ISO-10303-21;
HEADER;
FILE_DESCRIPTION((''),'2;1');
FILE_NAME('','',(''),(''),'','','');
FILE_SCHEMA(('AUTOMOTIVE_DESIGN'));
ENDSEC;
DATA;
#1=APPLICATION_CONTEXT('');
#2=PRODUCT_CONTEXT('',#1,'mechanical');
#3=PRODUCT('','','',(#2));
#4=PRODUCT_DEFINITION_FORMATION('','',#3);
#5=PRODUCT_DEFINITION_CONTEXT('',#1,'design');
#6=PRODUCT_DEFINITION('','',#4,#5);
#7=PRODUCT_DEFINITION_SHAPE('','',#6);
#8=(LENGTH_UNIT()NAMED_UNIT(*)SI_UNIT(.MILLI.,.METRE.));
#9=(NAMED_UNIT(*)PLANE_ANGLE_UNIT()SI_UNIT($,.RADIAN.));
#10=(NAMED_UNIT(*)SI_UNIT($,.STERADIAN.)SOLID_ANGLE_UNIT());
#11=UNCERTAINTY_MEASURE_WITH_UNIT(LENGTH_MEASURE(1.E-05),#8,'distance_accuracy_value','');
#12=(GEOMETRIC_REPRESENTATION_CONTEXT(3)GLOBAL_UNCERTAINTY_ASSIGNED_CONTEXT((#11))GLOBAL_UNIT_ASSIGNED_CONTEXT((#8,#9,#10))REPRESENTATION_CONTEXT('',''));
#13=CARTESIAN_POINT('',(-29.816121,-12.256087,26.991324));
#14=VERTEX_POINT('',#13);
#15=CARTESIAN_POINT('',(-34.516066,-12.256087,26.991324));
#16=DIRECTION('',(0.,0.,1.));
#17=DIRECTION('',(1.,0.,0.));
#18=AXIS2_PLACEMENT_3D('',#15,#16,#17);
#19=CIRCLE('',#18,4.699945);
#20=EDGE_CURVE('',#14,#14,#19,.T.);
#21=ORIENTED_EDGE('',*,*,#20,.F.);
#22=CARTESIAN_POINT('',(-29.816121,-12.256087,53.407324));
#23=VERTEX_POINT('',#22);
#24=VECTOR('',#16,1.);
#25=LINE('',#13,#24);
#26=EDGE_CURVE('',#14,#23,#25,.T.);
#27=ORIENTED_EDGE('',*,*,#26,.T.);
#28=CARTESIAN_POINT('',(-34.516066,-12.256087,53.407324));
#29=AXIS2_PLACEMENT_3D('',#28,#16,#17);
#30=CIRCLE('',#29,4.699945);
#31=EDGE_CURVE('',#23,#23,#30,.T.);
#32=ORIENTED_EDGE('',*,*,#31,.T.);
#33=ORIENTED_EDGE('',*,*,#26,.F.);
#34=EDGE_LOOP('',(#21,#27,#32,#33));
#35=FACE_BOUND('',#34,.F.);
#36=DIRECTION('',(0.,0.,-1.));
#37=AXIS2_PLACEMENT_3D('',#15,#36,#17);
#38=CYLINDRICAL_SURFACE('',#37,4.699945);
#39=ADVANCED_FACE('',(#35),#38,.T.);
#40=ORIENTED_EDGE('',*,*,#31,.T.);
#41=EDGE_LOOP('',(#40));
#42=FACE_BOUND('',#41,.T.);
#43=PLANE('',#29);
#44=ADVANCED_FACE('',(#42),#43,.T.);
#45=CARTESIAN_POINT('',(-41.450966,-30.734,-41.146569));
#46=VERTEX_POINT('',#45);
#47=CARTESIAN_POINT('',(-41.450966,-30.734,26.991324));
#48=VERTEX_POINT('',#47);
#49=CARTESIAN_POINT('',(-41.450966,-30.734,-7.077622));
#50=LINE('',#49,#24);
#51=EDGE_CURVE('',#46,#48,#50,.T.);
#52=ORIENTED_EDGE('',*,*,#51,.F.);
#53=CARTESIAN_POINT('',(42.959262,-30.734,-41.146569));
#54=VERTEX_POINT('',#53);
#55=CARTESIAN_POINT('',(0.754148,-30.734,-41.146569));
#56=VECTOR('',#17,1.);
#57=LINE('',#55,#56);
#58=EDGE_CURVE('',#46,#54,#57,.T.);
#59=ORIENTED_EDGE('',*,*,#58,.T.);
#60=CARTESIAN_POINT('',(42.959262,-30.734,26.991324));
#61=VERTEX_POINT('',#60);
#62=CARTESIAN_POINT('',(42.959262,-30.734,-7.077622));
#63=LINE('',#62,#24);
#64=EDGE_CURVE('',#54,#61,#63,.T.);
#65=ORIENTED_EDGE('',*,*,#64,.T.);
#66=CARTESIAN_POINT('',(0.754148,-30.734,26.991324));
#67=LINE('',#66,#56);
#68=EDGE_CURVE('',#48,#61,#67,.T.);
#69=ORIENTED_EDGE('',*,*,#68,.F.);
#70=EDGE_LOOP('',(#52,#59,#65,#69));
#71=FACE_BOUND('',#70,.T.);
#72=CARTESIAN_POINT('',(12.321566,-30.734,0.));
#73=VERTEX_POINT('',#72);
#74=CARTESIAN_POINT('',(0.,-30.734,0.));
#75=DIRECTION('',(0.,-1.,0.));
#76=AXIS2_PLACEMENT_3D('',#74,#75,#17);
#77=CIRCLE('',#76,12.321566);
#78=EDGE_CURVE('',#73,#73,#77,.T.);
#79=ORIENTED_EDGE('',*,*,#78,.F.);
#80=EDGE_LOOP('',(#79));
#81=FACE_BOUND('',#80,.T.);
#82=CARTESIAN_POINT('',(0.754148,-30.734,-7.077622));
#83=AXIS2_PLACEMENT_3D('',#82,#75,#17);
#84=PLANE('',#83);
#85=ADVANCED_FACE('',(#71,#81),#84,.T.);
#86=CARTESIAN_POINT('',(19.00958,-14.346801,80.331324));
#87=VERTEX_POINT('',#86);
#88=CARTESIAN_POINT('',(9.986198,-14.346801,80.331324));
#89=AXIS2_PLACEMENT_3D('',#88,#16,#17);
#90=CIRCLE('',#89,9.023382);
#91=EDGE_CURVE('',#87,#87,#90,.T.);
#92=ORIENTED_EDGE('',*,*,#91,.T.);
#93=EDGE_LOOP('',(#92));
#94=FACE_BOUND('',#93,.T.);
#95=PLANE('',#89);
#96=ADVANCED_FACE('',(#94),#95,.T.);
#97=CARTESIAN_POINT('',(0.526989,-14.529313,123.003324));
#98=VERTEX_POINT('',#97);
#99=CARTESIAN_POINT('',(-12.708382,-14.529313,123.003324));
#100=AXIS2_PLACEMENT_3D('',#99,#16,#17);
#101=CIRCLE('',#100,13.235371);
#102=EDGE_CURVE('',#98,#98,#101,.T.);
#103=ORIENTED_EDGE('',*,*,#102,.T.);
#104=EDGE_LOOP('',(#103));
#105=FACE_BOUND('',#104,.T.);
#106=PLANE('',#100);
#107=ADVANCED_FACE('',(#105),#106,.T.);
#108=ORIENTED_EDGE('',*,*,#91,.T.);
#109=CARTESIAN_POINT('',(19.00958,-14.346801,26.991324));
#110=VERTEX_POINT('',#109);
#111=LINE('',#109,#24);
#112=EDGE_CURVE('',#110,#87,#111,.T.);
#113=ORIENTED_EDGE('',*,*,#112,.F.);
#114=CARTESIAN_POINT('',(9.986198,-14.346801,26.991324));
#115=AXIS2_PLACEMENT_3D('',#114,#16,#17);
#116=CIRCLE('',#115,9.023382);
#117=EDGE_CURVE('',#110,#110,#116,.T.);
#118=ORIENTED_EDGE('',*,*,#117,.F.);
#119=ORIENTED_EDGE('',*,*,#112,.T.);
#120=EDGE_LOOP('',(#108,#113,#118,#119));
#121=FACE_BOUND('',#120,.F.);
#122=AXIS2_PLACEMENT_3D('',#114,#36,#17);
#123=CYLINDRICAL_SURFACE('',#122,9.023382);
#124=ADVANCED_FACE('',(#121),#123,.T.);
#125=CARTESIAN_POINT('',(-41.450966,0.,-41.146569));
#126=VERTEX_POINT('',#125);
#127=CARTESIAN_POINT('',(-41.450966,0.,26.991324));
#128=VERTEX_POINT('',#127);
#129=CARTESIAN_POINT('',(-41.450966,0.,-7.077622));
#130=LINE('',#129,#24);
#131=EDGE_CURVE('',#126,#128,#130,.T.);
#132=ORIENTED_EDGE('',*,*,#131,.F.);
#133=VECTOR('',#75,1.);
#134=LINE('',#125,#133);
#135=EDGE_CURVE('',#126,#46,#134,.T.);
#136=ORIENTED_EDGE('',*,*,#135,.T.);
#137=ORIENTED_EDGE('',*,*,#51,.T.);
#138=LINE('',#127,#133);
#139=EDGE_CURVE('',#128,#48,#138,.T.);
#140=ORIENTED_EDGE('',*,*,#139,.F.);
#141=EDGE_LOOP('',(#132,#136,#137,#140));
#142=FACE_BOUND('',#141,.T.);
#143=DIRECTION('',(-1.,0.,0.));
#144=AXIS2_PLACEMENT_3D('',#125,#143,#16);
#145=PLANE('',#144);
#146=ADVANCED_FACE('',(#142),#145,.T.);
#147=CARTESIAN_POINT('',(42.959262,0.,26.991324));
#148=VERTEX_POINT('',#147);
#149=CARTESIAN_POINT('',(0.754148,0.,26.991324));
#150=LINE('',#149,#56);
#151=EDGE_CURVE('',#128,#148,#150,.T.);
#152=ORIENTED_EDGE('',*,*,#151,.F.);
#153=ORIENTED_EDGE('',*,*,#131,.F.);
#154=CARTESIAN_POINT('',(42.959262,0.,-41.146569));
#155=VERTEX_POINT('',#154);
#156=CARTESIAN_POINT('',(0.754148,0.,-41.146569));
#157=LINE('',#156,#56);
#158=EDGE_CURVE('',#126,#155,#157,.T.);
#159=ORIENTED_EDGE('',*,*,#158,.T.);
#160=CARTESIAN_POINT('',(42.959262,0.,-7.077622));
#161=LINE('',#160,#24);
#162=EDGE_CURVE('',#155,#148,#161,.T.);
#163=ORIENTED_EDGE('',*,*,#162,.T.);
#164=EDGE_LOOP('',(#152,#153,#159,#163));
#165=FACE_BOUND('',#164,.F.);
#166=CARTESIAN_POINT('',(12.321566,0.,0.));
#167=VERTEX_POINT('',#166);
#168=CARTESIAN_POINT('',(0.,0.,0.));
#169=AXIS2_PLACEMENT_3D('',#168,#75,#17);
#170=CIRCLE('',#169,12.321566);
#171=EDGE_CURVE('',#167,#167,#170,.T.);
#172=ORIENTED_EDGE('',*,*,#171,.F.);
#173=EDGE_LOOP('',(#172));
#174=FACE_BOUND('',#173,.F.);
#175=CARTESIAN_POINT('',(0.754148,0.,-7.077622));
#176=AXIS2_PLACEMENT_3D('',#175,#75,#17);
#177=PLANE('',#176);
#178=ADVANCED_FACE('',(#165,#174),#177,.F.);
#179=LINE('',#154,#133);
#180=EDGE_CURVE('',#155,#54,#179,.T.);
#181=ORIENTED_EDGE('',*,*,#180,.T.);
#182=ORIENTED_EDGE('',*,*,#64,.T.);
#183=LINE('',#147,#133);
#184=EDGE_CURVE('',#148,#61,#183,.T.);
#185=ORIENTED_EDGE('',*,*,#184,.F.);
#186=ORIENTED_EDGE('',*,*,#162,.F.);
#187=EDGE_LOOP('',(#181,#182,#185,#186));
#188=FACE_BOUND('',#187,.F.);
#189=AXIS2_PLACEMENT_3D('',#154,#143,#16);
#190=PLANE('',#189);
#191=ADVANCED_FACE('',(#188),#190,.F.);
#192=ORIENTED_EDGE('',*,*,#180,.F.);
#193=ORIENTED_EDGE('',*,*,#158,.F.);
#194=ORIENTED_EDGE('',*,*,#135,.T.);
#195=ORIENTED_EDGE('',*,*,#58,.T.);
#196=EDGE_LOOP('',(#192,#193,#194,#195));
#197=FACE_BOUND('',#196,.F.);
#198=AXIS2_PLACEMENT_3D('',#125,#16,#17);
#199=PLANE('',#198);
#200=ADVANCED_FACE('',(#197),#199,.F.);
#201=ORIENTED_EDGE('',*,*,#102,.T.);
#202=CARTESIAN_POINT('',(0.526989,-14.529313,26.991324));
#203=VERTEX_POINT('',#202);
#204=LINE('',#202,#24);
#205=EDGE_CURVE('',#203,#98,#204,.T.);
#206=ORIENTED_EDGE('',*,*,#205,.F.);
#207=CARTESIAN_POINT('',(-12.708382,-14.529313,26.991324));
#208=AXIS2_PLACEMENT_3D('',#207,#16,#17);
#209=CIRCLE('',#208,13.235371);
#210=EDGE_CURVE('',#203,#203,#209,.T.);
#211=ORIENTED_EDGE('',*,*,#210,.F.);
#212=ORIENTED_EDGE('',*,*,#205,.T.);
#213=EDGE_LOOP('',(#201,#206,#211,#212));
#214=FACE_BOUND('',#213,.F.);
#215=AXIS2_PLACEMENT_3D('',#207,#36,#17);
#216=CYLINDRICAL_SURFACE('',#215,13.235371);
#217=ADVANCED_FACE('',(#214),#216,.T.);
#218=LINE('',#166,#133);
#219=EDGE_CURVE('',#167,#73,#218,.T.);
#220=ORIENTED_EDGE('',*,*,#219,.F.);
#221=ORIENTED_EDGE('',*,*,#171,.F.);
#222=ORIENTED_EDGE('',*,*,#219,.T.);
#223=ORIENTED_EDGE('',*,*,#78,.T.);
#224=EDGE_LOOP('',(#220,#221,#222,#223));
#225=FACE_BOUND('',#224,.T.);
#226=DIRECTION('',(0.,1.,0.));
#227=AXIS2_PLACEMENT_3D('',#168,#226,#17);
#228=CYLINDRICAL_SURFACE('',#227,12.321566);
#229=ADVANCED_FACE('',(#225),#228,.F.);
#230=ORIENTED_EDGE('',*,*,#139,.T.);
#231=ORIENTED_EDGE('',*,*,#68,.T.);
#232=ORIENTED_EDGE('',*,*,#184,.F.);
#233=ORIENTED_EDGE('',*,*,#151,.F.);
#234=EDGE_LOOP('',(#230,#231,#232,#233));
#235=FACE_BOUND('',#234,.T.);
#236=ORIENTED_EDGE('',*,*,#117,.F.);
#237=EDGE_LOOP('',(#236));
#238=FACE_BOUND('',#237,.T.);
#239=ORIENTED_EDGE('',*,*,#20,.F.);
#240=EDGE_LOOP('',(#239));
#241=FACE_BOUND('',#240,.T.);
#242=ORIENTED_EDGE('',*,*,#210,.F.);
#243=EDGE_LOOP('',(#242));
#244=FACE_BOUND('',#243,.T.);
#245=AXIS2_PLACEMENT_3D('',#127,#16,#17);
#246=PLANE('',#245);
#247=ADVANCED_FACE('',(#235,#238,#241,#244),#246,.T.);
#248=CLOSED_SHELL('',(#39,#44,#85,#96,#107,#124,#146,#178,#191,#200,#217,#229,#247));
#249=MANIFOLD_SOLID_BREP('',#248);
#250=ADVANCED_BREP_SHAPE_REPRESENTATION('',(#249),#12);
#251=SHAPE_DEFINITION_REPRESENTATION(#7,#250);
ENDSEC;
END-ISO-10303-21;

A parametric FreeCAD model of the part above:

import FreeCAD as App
import Part
import Sketcher
Q = App.Units.Quantity

doc = App.newDocument("Part")
body = doc.addObject("PartDesign::Body", "Body")

# Sketch on XZ plane
sketch1 = body.newObject("Sketcher::SketchObject", "Sketch")
sketch1.AttachmentSupport = (doc.getObject("XZ_Plane"), [""])
sketch1.MapMode = "FlatFace"
sketch1.addGeometry([
    Part.LineSegment(App.Vector(-41, 27, 0), App.Vector(-41, -41, 0)),  # 0
    Part.LineSegment(App.Vector(-41, -41, 0), App.Vector(43, -41, 0)),  # 1
    Part.LineSegment(App.Vector(43, -41, 0), App.Vector(43, 27, 0)),  # 2
    Part.LineSegment(App.Vector(43, 27, 0), App.Vector(-41, 27, 0)),  # 3
    Part.Circle(App.Vector(0, 0, 0), App.Vector(0, 0, 1), 12),  # 4
], False)
sketch1.addConstraint([
    Sketcher.Constraint("Coincident", 0, 2, 1, 1),
    Sketcher.Constraint("Coincident", 1, 2, 2, 1),
    Sketcher.Constraint("Coincident", 2, 2, 3, 1),
    Sketcher.Constraint("Coincident", 3, 2, 0, 1),
    Sketcher.Constraint("Vertical", 0),
    Sketcher.Constraint("Horizontal", 1),
    Sketcher.Constraint("Vertical", 2),
    Sketcher.Constraint("Horizontal", 3),
    Sketcher.Constraint("Coincident", 4, 3, -1, 1),
    Sketcher.Constraint("Diameter", 4, Q("24.643132 mm")),
    Sketcher.Constraint("DistanceX", 1, 1, 1, 2, Q("84.410228 mm")),
    Sketcher.Constraint("DistanceY", 0, 2, 0, 1, Q("68.137893 mm")),
    Sketcher.Constraint("DistanceY", 0, 2, -1, 1, Q("41.146569 mm")),
    Sketcher.Constraint("DistanceX", -1, 1, 1, 2, Q("42.959262 mm")),
])
pad1 = body.newObject("PartDesign::Pad", "Pad")
pad1.Profile = sketch1
pad1.Length = Q("1.21 in")

# Sketch on XY plane
sketch2 = body.newObject("Sketcher::SketchObject", "Sketch001")
sketch2.AttachmentSupport = (doc.getObject("XY_Plane"), [""])
sketch2.MapMode = "FlatFace"
sketch2.AttachmentOffset = App.Placement(App.Vector(0, 0, 26.991324), App.Rotation())
sketch2.addGeometry(Part.Circle(App.Vector(-13, -15, 0), App.Vector(0, 0, 1), 13), False)
sketch2.addConstraint([
    Sketcher.Constraint("Diameter", 0, Q("26.470741 mm")),
    Sketcher.Constraint("DistanceX", 0, 3, -1, 1, Q("12.708382 mm")),
    Sketcher.Constraint("DistanceY", 0, 3, -1, 1, Q("14.529313 mm")),
])
pad2 = body.newObject("PartDesign::Pad", "Pad001")
pad2.Profile = sketch2
pad2.Length = Q("3.78 in")

# Sketch on XY plane
sketch3 = body.newObject("Sketcher::SketchObject", "Sketch002")
sketch3.AttachmentSupport = (doc.getObject("XY_Plane"), [""])
sketch3.MapMode = "FlatFace"
sketch3.AttachmentOffset = App.Placement(App.Vector(0, 0, 26.991324), App.Rotation())
sketch3.addGeometry(Part.Circle(App.Vector(10, -14, 0), App.Vector(0, 0, 1), 9), False)
sketch3.addConstraint([
    Sketcher.Constraint("Diameter", 0, Q("18.046765 mm")),
    Sketcher.Constraint("DistanceY", 0, 3, -1, 1, Q("14.346801 mm")),
    Sketcher.Constraint("DistanceX", -1, 1, 0, 3, Q("9.986198 mm")),
])
pad3 = body.newObject("PartDesign::Pad", "Pad002")
pad3.Profile = sketch3
pad3.Length = Q("2.1 in")

# Sketch on XY plane
sketch4 = body.newObject("Sketcher::SketchObject", "Sketch003")
sketch4.AttachmentSupport = (doc.getObject("XY_Plane"), [""])
sketch4.MapMode = "FlatFace"
sketch4.AttachmentOffset = App.Placement(App.Vector(0, 0, 26.991324), App.Rotation())
sketch4.addGeometry(Part.Circle(App.Vector(-34.5, -12.3, 0), App.Vector(0, 0, 1), 4.7), False)
sketch4.addConstraint([
    Sketcher.Constraint("Diameter", 0, Q("9.39989 mm")),
    Sketcher.Constraint("DistanceX", 0, 3, -1, 1, Q("34.516066 mm")),
    Sketcher.Constraint("DistanceY", 0, 3, -1, 1, Q("12.256087 mm")),
])
pad4 = body.newObject("PartDesign::Pad", "Pad003")
pad4.Profile = sketch4
pad4.Length = Q("1.04 in")

doc.recompute()
